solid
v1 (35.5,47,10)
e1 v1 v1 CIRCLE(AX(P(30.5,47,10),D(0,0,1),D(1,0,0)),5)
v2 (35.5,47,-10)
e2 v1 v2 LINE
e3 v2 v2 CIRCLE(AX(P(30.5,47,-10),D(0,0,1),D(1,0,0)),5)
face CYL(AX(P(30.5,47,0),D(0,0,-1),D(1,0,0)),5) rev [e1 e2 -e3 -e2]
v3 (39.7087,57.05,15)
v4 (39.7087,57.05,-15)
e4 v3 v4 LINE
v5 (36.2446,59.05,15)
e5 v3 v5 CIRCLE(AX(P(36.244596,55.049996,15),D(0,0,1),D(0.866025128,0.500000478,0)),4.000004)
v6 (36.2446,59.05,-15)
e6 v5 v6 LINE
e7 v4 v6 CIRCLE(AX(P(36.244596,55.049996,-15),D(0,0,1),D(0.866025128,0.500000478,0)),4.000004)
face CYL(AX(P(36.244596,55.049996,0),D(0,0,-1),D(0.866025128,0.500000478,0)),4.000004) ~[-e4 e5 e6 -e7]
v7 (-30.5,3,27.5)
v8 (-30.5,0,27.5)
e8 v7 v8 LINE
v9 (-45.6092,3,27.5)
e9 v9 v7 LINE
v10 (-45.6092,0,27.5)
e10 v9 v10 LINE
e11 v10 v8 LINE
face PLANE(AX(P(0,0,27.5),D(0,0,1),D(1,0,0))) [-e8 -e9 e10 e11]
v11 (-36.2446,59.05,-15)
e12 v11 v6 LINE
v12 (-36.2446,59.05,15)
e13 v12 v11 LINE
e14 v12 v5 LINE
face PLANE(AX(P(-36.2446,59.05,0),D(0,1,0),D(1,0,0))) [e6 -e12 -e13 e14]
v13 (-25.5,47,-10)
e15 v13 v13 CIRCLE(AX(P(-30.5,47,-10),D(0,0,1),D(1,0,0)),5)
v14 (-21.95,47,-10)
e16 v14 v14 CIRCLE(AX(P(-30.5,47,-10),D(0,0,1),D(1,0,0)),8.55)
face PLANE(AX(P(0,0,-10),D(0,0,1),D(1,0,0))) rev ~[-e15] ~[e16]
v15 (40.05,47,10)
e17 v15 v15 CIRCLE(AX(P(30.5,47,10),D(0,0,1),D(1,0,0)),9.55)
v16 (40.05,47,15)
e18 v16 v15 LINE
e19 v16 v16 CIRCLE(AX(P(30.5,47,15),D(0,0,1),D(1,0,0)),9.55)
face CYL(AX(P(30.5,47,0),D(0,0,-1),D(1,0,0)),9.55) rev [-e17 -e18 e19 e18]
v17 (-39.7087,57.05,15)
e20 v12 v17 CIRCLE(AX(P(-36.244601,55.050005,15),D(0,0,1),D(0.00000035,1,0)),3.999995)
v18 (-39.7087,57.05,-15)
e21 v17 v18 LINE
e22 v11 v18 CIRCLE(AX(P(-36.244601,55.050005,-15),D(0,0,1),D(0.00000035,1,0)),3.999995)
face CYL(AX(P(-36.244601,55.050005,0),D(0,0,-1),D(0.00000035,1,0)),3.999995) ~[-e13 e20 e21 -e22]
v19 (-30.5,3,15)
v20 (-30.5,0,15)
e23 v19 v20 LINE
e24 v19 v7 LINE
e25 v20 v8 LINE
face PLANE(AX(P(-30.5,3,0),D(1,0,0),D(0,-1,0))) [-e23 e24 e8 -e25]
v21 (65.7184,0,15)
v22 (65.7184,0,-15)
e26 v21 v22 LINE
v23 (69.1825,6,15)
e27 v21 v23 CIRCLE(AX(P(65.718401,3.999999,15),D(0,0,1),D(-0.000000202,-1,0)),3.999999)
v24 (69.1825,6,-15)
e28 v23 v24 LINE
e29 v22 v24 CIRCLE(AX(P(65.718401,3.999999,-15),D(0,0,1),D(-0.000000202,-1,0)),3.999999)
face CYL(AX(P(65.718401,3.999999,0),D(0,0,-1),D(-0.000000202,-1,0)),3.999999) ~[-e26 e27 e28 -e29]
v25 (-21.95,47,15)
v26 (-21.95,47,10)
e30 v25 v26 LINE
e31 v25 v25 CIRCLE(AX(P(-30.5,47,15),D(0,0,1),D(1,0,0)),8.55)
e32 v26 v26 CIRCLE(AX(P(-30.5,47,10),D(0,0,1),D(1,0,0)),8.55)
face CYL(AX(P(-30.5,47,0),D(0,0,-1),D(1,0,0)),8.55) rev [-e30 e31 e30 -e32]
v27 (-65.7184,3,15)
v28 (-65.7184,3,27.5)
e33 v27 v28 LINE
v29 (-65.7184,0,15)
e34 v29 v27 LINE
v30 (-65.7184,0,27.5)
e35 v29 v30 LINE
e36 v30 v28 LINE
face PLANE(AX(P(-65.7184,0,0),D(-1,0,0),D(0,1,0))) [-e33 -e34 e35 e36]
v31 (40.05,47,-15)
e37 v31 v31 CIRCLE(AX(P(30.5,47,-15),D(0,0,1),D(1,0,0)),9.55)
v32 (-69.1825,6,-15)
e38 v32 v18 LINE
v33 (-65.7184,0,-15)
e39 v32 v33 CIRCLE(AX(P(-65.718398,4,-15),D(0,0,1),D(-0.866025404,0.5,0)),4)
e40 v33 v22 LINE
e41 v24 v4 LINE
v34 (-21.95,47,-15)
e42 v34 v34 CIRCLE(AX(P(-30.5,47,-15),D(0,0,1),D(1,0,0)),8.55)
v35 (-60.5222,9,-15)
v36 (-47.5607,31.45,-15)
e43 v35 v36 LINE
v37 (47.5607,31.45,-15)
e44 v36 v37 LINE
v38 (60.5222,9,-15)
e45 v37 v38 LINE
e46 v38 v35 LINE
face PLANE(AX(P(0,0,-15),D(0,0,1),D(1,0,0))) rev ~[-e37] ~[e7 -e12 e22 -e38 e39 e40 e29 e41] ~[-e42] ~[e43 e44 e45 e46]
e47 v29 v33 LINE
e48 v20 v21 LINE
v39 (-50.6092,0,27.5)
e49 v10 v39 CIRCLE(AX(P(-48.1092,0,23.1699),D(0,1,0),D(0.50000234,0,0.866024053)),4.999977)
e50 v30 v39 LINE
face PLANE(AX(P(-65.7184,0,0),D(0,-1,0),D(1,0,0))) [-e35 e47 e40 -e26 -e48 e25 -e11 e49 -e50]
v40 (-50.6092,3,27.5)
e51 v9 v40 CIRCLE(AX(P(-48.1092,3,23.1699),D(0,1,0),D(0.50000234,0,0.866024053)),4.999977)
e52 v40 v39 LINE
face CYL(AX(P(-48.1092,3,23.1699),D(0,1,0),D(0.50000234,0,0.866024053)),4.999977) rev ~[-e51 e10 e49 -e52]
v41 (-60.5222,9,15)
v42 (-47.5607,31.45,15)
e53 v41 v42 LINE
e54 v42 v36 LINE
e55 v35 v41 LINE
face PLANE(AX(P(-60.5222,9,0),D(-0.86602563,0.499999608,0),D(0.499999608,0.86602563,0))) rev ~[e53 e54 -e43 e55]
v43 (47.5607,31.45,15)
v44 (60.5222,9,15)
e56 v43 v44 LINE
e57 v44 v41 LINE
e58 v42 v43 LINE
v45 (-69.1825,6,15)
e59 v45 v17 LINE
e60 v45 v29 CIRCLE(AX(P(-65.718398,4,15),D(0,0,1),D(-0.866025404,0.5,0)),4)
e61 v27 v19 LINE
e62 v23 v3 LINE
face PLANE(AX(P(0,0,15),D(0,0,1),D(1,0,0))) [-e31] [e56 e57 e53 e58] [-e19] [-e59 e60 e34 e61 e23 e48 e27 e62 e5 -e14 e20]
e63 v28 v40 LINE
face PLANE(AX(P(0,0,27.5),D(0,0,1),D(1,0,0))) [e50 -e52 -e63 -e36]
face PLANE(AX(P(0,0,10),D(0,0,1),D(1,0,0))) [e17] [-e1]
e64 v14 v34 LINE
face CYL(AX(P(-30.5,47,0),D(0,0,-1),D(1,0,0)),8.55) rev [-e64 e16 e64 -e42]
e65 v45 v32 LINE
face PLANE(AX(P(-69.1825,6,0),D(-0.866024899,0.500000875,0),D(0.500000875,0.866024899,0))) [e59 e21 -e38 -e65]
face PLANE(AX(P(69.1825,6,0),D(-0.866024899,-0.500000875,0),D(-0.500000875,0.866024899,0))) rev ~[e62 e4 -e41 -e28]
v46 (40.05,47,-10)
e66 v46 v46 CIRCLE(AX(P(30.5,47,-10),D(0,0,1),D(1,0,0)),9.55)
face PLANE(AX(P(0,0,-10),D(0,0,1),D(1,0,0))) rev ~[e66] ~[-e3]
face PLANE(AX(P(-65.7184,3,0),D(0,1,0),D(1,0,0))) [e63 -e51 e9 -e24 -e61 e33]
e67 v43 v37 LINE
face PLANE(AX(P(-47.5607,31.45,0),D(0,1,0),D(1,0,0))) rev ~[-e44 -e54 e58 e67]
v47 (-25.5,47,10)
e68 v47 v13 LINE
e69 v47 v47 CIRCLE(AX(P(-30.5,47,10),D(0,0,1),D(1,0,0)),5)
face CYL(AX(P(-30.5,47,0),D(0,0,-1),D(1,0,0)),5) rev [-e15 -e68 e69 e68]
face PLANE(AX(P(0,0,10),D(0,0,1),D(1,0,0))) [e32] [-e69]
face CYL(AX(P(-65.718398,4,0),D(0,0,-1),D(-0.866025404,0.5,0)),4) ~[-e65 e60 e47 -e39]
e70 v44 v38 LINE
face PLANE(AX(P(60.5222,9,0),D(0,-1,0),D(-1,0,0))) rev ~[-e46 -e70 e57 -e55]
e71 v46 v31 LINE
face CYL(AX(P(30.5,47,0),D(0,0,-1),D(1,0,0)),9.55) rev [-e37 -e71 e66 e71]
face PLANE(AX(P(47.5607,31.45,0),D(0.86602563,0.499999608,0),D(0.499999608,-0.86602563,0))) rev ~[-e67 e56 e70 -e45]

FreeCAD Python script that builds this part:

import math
import FreeCAD as App
import Part
import Sketcher
Q = App.Units.Quantity


def add_polygon(sketch, points):
    """Adds a closed chain of lines whose ends are joined by coincident constraints."""
    first, n = sketch.GeometryCount, len(points)
    for a, b in zip(points, points[1:] + points[:1]):
        sketch.addGeometry(Part.LineSegment(App.Vector(*a, 0), App.Vector(*b, 0)), False)
    for i in range(n):
        sketch.addConstraint(Sketcher.Constraint("Coincident", first + i, 2, first + (i + 1) % n, 1))

doc = App.newDocument("Part")
body = doc.addObject("PartDesign::Body", "Body")

sketch1 = body.newObject("Sketcher::SketchObject", "Sketch")
sketch1.AttachmentSupport = (doc.getObject("XY_Plane"), [""])
sketch1.MapMode = "FlatFace"
sketch1.addGeometry(Part.ArcOfCircle(Part.Circle(App.Vector(-65.7, 4, 0), App.Vector(0, 0, 1), 4), math.radians(150), math.radians(270)), False)
sketch1.addGeometry(Part.LineSegment(App.Vector(-65.7, 0, 0), App.Vector(-65.7, 3, 0)), False)
sketch1.addGeometry(Part.LineSegment(App.Vector(-65.7, 3, 0), App.Vector(-30.5, 3, 0)), False)
sketch1.addGeometry(Part.LineSegment(App.Vector(-30.5, 3, 0), App.Vector(-30.5, 0, 0)), False)
sketch1.addGeometry(Part.LineSegment(App.Vector(-30.5, 0, 0), App.Vector(65.7, 0, 0)), False)
sketch1.addGeometry(Part.ArcOfCircle(Part.Circle(App.Vector(65.7, 4, 0), App.Vector(0, 0, 1), 4), math.radians(-90), math.radians(30)), False)
sketch1.addGeometry(Part.LineSegment(App.Vector(69.2, 6, 0), App.Vector(39.7, 57, 0)), False)
sketch1.addGeometry(Part.ArcOfCircle(Part.Circle(App.Vector(36.2, 55, 0), App.Vector(0, 0, 1), 4), math.radians(30), math.radians(90)), False)
sketch1.addGeometry(Part.LineSegment(App.Vector(36.2, 59, 0), App.Vector(-36.2, 59, 0)), False)
sketch1.addGeometry(Part.ArcOfCircle(Part.Circle(App.Vector(-36.2, 55, 0), App.Vector(0, 0, 1), 4), math.radians(90), math.radians(150)), False)
sketch1.addGeometry(Part.LineSegment(App.Vector(-39.7, 57, 0), App.Vector(-69.2, 6, 0)), False)
add_polygon(sketch1, [(60.5, 9), (-60.5, 9), (-47.6, 31.4), (47.6, 31.4)])
sketch1.addGeometry(Part.Circle(App.Vector(-30.5, 47, 0), App.Vector(0, 0, 1), 8.6), False)
sketch1.addGeometry(Part.Circle(App.Vector(30.5, 47, 0), App.Vector(0, 0, 1), 9.6), False)
sketch1.addConstraint(Sketcher.Constraint("Coincident", 0, 2, 1, 1))
sketch1.addConstraint(Sketcher.Constraint("Coincident", 1, 2, 2, 1))
sketch1.addConstraint(Sketcher.Constraint("Coincident", 2, 2, 3, 1))
sketch1.addConstraint(Sketcher.Constraint("Coincident", 3, 2, 4, 1))
sketch1.addConstraint(Sketcher.Constraint("Tangent", 4, 2, 5, 1))
sketch1.addConstraint(Sketcher.Constraint("Tangent", 5, 2, 6, 1))
sketch1.addConstraint(Sketcher.Constraint("Tangent", 6, 2, 7, 1))
sketch1.addConstraint(Sketcher.Constraint("Tangent", 7, 2, 8, 1))
sketch1.addConstraint(Sketcher.Constraint("Tangent", 8, 2, 9, 1))
sketch1.addConstraint(Sketcher.Constraint("Tangent", 9, 2, 10, 1))
sketch1.addConstraint(Sketcher.Constraint("Tangent", 10, 2, 0, 1))
sketch1.addConstraint(Sketcher.Constraint("Vertical", 1))
sketch1.addConstraint(Sketcher.Constraint("Horizontal", 2))
sketch1.addConstraint(Sketcher.Constraint("Vertical", 3))
sketch1.addConstraint(Sketcher.Constraint("Horizontal", 4))
sketch1.addConstraint(Sketcher.Constraint("Horizontal", 8))
sketch1.addConstraint(Sketcher.Constraint("Horizontal", 11))
sketch1.addConstraint(Sketcher.Constraint("Horizontal", 13))
sketch1.addConstraint(Sketcher.Constraint("Equal", 0, 5))
sketch1.addConstraint(Sketcher.Constraint("Equal", 5, 7))
sketch1.addConstraint(Sketcher.Constraint("Equal", 7, 9))
sketch1.addConstraint(Sketcher.Constraint("Symmetric", 0, 2, 4, 2, -1, 1))
sketch1.addConstraint(Sketcher.Constraint("Symmetric", 0, 3, 5, 3, -2))
sketch1.addConstraint(Sketcher.Constraint("Symmetric", 15, 3, 16, 3, -2))
sketch1.addConstraint(Sketcher.Constraint("Parallel", 10, 12))
sketch1.addConstraint(Sketcher.Constraint("Parallel", 6, 14))
sketch1.addConstraint(Sketcher.Constraint("Horizontal", 6, 2, 9, 2))
sketch1.addConstraint(Sketcher.Constraint("Vertical", 15, 3, 2, 2))
sketch1.addConstraint(Sketcher.Constraint("Radius", 0, Q("4 mm")))
sketch1.addConstraint(Sketcher.Constraint("Diameter", 15, Q("17.1 mm")))
sketch1.addConstraint(Sketcher.Constraint("Diameter", 16, Q("19.1 mm")))
sketch1.addConstraint(Sketcher.Constraint("DistanceY", 1, 1, 1, 2, Q("3 mm")))
sketch1.addConstraint(Sketcher.Constraint("Angle", 12, Q("60 deg")))
sketch1.addConstraint(Sketcher.Constraint("DistanceX", 15, 3, 16, 3, Q("61 mm")))
sketch1.addConstraint(Sketcher.Constraint("DistanceY", 1, 2, 15, 3, Q("44 mm")))
sketch1.addConstraint(Sketcher.Constraint("DistanceY", 1, 2, 11, 2, Q("6 mm")))
sketch1.addConstraint(Sketcher.Constraint("DistanceY", 12, 2, 9, 3, Q("23.6 mm")))
sketch1.addConstraint(Sketcher.Constraint("DistanceY", -1, 1, 7, 3, Q("55.05 mm")))
sketch1.addConstraint(Sketcher.Constraint("DistanceX", 2, 1, 2, 2, Q("35.2184 mm")))
sketch1.addConstraint(Sketcher.Constraint("DistanceX", 11, 2, 11, 1, Q("121.0444 mm")))
sketch1.addConstraint(Sketcher.Constraint("DistanceX", 12, 2, 9, 3, Q("11.316 mm")))
pad1 = body.newObject("PartDesign::Pad", "Pad")
pad1.Profile = sketch1
pad1.Length = 30
pad1.Midplane = True

sketch2 = body.newObject("Sketcher::SketchObject", "Sketch001")
sketch2.AttachmentSupport = (doc.getObject("XY_Plane"), [""])
sketch2.MapMode = "FlatFace"
sketch2.addGeometry(Part.Circle(App.Vector(-30, 47, 0), App.Vector(0, 0, 1), 9), False)
sketch2.addGeometry(Part.Circle(App.Vector(-30, 47, 0), App.Vector(0, 0, 1), 5), False)
sketch2.addGeometry(Part.Circle(App.Vector(30, 47, 0), App.Vector(0, 0, 1), 10), False)
sketch2.addGeometry(Part.Circle(App.Vector(30, 47, 0), App.Vector(0, 0, 1), 5), False)
sketch2.addConstraint(Sketcher.Constraint("Coincident", 1, 3, 0, 3))
sketch2.addConstraint(Sketcher.Constraint("Coincident", 3, 3, 2, 3))
sketch2.addConstraint(Sketcher.Constraint("Equal", 1, 3))
sketch2.addConstraint(Sketcher.Constraint("Symmetric", 0, 3, 2, 3, -2))
sketch2.addConstraint(Sketcher.Constraint("Diameter", 1, Q("10 mm")))
sketch2.addConstraint(Sketcher.Constraint("Diameter", 0, Q("17.1 mm")))
sketch2.addConstraint(Sketcher.Constraint("Diameter", 2, Q("19.1 mm")))
sketch2.addConstraint(Sketcher.Constraint("DistanceX", 0, 3, 2, 3, Q("61 mm")))
sketch2.addConstraint(Sketcher.Constraint("DistanceY", -1, 1, 0, 3, Q("47 mm")))
pad2 = body.newObject("PartDesign::Pad", "Pad001")
pad2.Profile = sketch2
pad2.Length = 20
pad2.Midplane = True

sketch3 = body.newObject("Sketcher::SketchObject", "Sketch002")
sketch3.AttachmentSupport = (doc.getObject("XY_Plane"), [""])
sketch3.MapMode = "FlatFace"
add_polygon(sketch3, [(-65.7, 3), (-65.7, 0), (-30.5, 0), (-30.5, 3)])
sketch3.addConstraint(Sketcher.Constraint("Vertical", 0))
sketch3.addConstraint(Sketcher.Constraint("Horizontal", 1))
sketch3.addConstraint(Sketcher.Constraint("Vertical", 2))
sketch3.addConstraint(Sketcher.Constraint("Horizontal", 3))
sketch3.addConstraint(Sketcher.Constraint("PointOnObject", 0, 2, -1))
sketch3.addConstraint(Sketcher.Constraint("DistanceY", 0, 2, 0, 1, Q("3 mm")))
sketch3.addConstraint(Sketcher.Constraint("DistanceX", 1, 2, -1, 1, Q("30.5 mm")))
sketch3.addConstraint(Sketcher.Constraint("DistanceX", 1, 1, 1, 2, Q("35.2184 mm")))
pad3 = body.newObject("PartDesign::Pad", "Pad002")
pad3.Profile = sketch3
pad3.Length = 27.5

sketch4 = body.newObject("Sketcher::SketchObject", "Sketch003")
sketch4.AttachmentSupport = (doc.getObject("XZ_Plane"), [""])
sketch4.MapMode = "FlatFace"
sketch4.AttachmentOffset = App.Placement(App.Vector(0, 0, -3), App.Rotation())
sketch4.addGeometry(Part.ArcOfCircle(Part.Circle(App.Vector(-48.1, 23.2, 0), App.Vector(0, 0, 1), 5), math.radians(120), math.radians(420)), False)
sketch4.addGeometry(Part.LineSegment(App.Vector(-50.6, 27.5, 0), App.Vector(-45.6, 27.5, 0)), False)
sketch4.addConstraint(Sketcher.Constraint("Coincident", 0, 1, 1, 1))
sketch4.addConstraint(Sketcher.Constraint("Coincident", 1, 2, 0, 2))
sketch4.addConstraint(Sketcher.Constraint("Horizontal", 1))
sketch4.addConstraint(Sketcher.Constraint("Radius", 0, Q("5 mm")))
sketch4.addConstraint(Sketcher.Constraint("DistanceX", 1, 1, 1, 2, Q("5 mm")))
sketch4.addConstraint(Sketcher.Constraint("DistanceY", -1, 1, 0, 1, Q("27.5 mm")))
sketch4.addConstraint(Sketcher.Constraint("DistanceX", 0, 3, -1, 1, Q("48.1092 mm")))
pocket1 = body.newObject("PartDesign::Pocket", "Pocket")
pocket1.Profile = sketch4
pocket1.Type = "ThroughAll"
pocket1.Reversed = True

sketch5 = body.newObject("Sketcher::SketchObject", "Sketch004")
sketch5.AttachmentSupport = (doc.getObject("XY_Plane"), [""])
sketch5.MapMode = "FlatFace"
add_polygon(sketch5, [(-65.7, 3), (-65.7, 0), (-30.5, 0), (-30.5, 3)])
sketch5.addConstraint(Sketcher.Constraint("Vertical", 0))
sketch5.addConstraint(Sketcher.Constraint("Horizontal", 1))
sketch5.addConstraint(Sketcher.Constraint("Vertical", 2))
sketch5.addConstraint(Sketcher.Constraint("Horizontal", 3))
sketch5.addConstraint(Sketcher.Constraint("PointOnObject", 0, 2, -1))
sketch5.addConstraint(Sketcher.Constraint("DistanceY", 0, 2, 0, 1, Q("3 mm")))
sketch5.addConstraint(Sketcher.Constraint("DistanceX", 1, 2, -1, 1, Q("30.5 mm")))
sketch5.addConstraint(Sketcher.Constraint("DistanceX", 1, 1, 1, 2, Q("35.2184 mm")))
pad4 = body.newObject("PartDesign::Pad", "Pad003")
pad4.Profile = sketch5
pad4.Length = 15
pad4.Reversed = True

doc.recompute()
